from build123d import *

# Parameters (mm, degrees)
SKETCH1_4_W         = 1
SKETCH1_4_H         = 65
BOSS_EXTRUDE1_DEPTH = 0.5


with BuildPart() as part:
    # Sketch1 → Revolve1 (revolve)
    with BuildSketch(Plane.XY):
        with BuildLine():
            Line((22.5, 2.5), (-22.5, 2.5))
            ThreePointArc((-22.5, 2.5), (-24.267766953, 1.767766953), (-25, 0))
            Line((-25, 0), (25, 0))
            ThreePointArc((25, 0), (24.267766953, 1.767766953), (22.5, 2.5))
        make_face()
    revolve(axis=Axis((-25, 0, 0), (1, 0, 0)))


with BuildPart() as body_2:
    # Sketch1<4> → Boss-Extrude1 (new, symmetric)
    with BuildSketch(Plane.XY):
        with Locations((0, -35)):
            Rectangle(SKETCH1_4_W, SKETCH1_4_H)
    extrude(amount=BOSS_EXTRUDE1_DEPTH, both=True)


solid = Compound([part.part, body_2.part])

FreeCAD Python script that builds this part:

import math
import FreeCAD as App
import Part
import Sketcher
from FreeCAD import Vector

doc = App.newDocument("Part")
params = doc.addObject("Spreadsheet::Sheet", "Params")
for row, (alias, value) in enumerate([
    ("sketch1_radius", "2.5 mm"),
    ("sketch1_width", "45 mm"),
    ("revolution_angle", "360 deg"),
    ("sketch2_width", "1 mm"),
    ("sketch2_height", "65 mm"),
    ("pad1_length", "1 mm"),
], start=1):
    params.set(f"A{row}", alias)
    params.set(f"B{row}", "=" + value)
    params.setAlias(f"B{row}", alias)

body = doc.addObject("PartDesign::Body", "Body")

sketch1 = body.newObject("Sketcher::SketchObject", "Sketch")
sketch1.AttachmentSupport = (doc.getObject("XY_Plane"), [""])
sketch1.MapMode = "FlatFace"
sketch1.addGeometry([
    Part.LineSegment(Vector(22.5, 2.5, 0), Vector(-22.5, 2.5, 0)),
    Part.ArcOfCircle(Part.Circle(Vector(-22.5, 0, 0), Vector(0, 0, 1), 2.5), math.radians(90), math.radians(180)),
    Part.LineSegment(Vector(-25, 0, 0), Vector(25, 0, 0)),
    Part.ArcOfCircle(Part.Circle(Vector(22.5, 0, 0), Vector(0, 0, 1), 2.5), math.radians(0), math.radians(90)),
], False)
sketch1.addConstraint([
    Sketcher.Constraint("Tangent", 0, 2, 1, 1),
    Sketcher.Constraint("Coincident", 1, 2, 2, 1),
    Sketcher.Constraint("Coincident", 2, 2, 3, 1),
    Sketcher.Constraint("Tangent", 3, 2, 0, 1),
    Sketcher.Constraint("Horizontal", 0),
    Sketcher.Constraint("Horizontal", 2),
    Sketcher.Constraint("Equal", 1, 3),
    Sketcher.Constraint("Symmetric", 1, 3, 3, 3, -1, 1),
    Sketcher.Constraint("PointOnObject", 1, 2, -1),
    Sketcher.Constraint("Radius", 1, 2.5),
    Sketcher.Constraint("DistanceX", 0, 2, 0, 1, 45.0),
])
sketch1.setExpression("Constraints[9]", "Params.sketch1_radius")
sketch1.setExpression("Constraints[10]", "Params.sketch1_width")
revolution = body.newObject("PartDesign::Revolution", "Revolution")
revolution.Profile = sketch1
revolution.ReferenceAxis = (sketch1, ["H_Axis"])
revolution.setExpression("Angle", "Params.revolution_angle")
body2 = doc.addObject("PartDesign::Body", "Body001")

sketch2 = body2.newObject("Sketcher::SketchObject", "Sketch001")
sketch2.AttachmentSupport = (doc.getObject("XY_Plane001"), [""])
sketch2.MapMode = "FlatFace"
sketch2.addGeometry([
    Part.LineSegment(Vector(-0.5, -2.5, 0), Vector(-0.5, -67.5, 0)),
    Part.LineSegment(Vector(-0.5, -67.5, 0), Vector(0.5, -67.5, 0)),
    Part.LineSegment(Vector(0.5, -67.5, 0), Vector(0.5, -2.5, 0)),
    Part.LineSegment(Vector(0.5, -2.5, 0), Vector(-0.5, -2.5, 0)),
], False)
sketch2.addConstraint([
    Sketcher.Constraint("Coincident", 0, 2, 1, 1),
    Sketcher.Constraint("Coincident", 1, 2, 2, 1),
    Sketcher.Constraint("Coincident", 2, 2, 3, 1),
    Sketcher.Constraint("Coincident", 3, 2, 0, 1),
    Sketcher.Constraint("Vertical", 0),
    Sketcher.Constraint("Horizontal", 1),
    Sketcher.Constraint("Vertical", 2),
    Sketcher.Constraint("Horizontal", 3),
    Sketcher.Constraint("DistanceX", 1, 1, 1, 2, 1.0),
    Sketcher.Constraint("DistanceY", 0, 2, 0, 1, 65.0),
    Sketcher.Constraint("DistanceX", 0, 2, -1, 1, 0.5),
    Sketcher.Constraint("DistanceY", 0, 2, -1, 1, 67.5),
])
sketch2.setExpression("Constraints[8]", "Params.sketch2_width")
sketch2.setExpression("Constraints[9]", "Params.sketch2_height")
pad1 = body2.newObject("PartDesign::Pad", "Pad")
pad1.Profile = sketch2
pad1.setExpression("Length", "Params.pad1_length")
pad1.Midplane = True

doc.recompute()
